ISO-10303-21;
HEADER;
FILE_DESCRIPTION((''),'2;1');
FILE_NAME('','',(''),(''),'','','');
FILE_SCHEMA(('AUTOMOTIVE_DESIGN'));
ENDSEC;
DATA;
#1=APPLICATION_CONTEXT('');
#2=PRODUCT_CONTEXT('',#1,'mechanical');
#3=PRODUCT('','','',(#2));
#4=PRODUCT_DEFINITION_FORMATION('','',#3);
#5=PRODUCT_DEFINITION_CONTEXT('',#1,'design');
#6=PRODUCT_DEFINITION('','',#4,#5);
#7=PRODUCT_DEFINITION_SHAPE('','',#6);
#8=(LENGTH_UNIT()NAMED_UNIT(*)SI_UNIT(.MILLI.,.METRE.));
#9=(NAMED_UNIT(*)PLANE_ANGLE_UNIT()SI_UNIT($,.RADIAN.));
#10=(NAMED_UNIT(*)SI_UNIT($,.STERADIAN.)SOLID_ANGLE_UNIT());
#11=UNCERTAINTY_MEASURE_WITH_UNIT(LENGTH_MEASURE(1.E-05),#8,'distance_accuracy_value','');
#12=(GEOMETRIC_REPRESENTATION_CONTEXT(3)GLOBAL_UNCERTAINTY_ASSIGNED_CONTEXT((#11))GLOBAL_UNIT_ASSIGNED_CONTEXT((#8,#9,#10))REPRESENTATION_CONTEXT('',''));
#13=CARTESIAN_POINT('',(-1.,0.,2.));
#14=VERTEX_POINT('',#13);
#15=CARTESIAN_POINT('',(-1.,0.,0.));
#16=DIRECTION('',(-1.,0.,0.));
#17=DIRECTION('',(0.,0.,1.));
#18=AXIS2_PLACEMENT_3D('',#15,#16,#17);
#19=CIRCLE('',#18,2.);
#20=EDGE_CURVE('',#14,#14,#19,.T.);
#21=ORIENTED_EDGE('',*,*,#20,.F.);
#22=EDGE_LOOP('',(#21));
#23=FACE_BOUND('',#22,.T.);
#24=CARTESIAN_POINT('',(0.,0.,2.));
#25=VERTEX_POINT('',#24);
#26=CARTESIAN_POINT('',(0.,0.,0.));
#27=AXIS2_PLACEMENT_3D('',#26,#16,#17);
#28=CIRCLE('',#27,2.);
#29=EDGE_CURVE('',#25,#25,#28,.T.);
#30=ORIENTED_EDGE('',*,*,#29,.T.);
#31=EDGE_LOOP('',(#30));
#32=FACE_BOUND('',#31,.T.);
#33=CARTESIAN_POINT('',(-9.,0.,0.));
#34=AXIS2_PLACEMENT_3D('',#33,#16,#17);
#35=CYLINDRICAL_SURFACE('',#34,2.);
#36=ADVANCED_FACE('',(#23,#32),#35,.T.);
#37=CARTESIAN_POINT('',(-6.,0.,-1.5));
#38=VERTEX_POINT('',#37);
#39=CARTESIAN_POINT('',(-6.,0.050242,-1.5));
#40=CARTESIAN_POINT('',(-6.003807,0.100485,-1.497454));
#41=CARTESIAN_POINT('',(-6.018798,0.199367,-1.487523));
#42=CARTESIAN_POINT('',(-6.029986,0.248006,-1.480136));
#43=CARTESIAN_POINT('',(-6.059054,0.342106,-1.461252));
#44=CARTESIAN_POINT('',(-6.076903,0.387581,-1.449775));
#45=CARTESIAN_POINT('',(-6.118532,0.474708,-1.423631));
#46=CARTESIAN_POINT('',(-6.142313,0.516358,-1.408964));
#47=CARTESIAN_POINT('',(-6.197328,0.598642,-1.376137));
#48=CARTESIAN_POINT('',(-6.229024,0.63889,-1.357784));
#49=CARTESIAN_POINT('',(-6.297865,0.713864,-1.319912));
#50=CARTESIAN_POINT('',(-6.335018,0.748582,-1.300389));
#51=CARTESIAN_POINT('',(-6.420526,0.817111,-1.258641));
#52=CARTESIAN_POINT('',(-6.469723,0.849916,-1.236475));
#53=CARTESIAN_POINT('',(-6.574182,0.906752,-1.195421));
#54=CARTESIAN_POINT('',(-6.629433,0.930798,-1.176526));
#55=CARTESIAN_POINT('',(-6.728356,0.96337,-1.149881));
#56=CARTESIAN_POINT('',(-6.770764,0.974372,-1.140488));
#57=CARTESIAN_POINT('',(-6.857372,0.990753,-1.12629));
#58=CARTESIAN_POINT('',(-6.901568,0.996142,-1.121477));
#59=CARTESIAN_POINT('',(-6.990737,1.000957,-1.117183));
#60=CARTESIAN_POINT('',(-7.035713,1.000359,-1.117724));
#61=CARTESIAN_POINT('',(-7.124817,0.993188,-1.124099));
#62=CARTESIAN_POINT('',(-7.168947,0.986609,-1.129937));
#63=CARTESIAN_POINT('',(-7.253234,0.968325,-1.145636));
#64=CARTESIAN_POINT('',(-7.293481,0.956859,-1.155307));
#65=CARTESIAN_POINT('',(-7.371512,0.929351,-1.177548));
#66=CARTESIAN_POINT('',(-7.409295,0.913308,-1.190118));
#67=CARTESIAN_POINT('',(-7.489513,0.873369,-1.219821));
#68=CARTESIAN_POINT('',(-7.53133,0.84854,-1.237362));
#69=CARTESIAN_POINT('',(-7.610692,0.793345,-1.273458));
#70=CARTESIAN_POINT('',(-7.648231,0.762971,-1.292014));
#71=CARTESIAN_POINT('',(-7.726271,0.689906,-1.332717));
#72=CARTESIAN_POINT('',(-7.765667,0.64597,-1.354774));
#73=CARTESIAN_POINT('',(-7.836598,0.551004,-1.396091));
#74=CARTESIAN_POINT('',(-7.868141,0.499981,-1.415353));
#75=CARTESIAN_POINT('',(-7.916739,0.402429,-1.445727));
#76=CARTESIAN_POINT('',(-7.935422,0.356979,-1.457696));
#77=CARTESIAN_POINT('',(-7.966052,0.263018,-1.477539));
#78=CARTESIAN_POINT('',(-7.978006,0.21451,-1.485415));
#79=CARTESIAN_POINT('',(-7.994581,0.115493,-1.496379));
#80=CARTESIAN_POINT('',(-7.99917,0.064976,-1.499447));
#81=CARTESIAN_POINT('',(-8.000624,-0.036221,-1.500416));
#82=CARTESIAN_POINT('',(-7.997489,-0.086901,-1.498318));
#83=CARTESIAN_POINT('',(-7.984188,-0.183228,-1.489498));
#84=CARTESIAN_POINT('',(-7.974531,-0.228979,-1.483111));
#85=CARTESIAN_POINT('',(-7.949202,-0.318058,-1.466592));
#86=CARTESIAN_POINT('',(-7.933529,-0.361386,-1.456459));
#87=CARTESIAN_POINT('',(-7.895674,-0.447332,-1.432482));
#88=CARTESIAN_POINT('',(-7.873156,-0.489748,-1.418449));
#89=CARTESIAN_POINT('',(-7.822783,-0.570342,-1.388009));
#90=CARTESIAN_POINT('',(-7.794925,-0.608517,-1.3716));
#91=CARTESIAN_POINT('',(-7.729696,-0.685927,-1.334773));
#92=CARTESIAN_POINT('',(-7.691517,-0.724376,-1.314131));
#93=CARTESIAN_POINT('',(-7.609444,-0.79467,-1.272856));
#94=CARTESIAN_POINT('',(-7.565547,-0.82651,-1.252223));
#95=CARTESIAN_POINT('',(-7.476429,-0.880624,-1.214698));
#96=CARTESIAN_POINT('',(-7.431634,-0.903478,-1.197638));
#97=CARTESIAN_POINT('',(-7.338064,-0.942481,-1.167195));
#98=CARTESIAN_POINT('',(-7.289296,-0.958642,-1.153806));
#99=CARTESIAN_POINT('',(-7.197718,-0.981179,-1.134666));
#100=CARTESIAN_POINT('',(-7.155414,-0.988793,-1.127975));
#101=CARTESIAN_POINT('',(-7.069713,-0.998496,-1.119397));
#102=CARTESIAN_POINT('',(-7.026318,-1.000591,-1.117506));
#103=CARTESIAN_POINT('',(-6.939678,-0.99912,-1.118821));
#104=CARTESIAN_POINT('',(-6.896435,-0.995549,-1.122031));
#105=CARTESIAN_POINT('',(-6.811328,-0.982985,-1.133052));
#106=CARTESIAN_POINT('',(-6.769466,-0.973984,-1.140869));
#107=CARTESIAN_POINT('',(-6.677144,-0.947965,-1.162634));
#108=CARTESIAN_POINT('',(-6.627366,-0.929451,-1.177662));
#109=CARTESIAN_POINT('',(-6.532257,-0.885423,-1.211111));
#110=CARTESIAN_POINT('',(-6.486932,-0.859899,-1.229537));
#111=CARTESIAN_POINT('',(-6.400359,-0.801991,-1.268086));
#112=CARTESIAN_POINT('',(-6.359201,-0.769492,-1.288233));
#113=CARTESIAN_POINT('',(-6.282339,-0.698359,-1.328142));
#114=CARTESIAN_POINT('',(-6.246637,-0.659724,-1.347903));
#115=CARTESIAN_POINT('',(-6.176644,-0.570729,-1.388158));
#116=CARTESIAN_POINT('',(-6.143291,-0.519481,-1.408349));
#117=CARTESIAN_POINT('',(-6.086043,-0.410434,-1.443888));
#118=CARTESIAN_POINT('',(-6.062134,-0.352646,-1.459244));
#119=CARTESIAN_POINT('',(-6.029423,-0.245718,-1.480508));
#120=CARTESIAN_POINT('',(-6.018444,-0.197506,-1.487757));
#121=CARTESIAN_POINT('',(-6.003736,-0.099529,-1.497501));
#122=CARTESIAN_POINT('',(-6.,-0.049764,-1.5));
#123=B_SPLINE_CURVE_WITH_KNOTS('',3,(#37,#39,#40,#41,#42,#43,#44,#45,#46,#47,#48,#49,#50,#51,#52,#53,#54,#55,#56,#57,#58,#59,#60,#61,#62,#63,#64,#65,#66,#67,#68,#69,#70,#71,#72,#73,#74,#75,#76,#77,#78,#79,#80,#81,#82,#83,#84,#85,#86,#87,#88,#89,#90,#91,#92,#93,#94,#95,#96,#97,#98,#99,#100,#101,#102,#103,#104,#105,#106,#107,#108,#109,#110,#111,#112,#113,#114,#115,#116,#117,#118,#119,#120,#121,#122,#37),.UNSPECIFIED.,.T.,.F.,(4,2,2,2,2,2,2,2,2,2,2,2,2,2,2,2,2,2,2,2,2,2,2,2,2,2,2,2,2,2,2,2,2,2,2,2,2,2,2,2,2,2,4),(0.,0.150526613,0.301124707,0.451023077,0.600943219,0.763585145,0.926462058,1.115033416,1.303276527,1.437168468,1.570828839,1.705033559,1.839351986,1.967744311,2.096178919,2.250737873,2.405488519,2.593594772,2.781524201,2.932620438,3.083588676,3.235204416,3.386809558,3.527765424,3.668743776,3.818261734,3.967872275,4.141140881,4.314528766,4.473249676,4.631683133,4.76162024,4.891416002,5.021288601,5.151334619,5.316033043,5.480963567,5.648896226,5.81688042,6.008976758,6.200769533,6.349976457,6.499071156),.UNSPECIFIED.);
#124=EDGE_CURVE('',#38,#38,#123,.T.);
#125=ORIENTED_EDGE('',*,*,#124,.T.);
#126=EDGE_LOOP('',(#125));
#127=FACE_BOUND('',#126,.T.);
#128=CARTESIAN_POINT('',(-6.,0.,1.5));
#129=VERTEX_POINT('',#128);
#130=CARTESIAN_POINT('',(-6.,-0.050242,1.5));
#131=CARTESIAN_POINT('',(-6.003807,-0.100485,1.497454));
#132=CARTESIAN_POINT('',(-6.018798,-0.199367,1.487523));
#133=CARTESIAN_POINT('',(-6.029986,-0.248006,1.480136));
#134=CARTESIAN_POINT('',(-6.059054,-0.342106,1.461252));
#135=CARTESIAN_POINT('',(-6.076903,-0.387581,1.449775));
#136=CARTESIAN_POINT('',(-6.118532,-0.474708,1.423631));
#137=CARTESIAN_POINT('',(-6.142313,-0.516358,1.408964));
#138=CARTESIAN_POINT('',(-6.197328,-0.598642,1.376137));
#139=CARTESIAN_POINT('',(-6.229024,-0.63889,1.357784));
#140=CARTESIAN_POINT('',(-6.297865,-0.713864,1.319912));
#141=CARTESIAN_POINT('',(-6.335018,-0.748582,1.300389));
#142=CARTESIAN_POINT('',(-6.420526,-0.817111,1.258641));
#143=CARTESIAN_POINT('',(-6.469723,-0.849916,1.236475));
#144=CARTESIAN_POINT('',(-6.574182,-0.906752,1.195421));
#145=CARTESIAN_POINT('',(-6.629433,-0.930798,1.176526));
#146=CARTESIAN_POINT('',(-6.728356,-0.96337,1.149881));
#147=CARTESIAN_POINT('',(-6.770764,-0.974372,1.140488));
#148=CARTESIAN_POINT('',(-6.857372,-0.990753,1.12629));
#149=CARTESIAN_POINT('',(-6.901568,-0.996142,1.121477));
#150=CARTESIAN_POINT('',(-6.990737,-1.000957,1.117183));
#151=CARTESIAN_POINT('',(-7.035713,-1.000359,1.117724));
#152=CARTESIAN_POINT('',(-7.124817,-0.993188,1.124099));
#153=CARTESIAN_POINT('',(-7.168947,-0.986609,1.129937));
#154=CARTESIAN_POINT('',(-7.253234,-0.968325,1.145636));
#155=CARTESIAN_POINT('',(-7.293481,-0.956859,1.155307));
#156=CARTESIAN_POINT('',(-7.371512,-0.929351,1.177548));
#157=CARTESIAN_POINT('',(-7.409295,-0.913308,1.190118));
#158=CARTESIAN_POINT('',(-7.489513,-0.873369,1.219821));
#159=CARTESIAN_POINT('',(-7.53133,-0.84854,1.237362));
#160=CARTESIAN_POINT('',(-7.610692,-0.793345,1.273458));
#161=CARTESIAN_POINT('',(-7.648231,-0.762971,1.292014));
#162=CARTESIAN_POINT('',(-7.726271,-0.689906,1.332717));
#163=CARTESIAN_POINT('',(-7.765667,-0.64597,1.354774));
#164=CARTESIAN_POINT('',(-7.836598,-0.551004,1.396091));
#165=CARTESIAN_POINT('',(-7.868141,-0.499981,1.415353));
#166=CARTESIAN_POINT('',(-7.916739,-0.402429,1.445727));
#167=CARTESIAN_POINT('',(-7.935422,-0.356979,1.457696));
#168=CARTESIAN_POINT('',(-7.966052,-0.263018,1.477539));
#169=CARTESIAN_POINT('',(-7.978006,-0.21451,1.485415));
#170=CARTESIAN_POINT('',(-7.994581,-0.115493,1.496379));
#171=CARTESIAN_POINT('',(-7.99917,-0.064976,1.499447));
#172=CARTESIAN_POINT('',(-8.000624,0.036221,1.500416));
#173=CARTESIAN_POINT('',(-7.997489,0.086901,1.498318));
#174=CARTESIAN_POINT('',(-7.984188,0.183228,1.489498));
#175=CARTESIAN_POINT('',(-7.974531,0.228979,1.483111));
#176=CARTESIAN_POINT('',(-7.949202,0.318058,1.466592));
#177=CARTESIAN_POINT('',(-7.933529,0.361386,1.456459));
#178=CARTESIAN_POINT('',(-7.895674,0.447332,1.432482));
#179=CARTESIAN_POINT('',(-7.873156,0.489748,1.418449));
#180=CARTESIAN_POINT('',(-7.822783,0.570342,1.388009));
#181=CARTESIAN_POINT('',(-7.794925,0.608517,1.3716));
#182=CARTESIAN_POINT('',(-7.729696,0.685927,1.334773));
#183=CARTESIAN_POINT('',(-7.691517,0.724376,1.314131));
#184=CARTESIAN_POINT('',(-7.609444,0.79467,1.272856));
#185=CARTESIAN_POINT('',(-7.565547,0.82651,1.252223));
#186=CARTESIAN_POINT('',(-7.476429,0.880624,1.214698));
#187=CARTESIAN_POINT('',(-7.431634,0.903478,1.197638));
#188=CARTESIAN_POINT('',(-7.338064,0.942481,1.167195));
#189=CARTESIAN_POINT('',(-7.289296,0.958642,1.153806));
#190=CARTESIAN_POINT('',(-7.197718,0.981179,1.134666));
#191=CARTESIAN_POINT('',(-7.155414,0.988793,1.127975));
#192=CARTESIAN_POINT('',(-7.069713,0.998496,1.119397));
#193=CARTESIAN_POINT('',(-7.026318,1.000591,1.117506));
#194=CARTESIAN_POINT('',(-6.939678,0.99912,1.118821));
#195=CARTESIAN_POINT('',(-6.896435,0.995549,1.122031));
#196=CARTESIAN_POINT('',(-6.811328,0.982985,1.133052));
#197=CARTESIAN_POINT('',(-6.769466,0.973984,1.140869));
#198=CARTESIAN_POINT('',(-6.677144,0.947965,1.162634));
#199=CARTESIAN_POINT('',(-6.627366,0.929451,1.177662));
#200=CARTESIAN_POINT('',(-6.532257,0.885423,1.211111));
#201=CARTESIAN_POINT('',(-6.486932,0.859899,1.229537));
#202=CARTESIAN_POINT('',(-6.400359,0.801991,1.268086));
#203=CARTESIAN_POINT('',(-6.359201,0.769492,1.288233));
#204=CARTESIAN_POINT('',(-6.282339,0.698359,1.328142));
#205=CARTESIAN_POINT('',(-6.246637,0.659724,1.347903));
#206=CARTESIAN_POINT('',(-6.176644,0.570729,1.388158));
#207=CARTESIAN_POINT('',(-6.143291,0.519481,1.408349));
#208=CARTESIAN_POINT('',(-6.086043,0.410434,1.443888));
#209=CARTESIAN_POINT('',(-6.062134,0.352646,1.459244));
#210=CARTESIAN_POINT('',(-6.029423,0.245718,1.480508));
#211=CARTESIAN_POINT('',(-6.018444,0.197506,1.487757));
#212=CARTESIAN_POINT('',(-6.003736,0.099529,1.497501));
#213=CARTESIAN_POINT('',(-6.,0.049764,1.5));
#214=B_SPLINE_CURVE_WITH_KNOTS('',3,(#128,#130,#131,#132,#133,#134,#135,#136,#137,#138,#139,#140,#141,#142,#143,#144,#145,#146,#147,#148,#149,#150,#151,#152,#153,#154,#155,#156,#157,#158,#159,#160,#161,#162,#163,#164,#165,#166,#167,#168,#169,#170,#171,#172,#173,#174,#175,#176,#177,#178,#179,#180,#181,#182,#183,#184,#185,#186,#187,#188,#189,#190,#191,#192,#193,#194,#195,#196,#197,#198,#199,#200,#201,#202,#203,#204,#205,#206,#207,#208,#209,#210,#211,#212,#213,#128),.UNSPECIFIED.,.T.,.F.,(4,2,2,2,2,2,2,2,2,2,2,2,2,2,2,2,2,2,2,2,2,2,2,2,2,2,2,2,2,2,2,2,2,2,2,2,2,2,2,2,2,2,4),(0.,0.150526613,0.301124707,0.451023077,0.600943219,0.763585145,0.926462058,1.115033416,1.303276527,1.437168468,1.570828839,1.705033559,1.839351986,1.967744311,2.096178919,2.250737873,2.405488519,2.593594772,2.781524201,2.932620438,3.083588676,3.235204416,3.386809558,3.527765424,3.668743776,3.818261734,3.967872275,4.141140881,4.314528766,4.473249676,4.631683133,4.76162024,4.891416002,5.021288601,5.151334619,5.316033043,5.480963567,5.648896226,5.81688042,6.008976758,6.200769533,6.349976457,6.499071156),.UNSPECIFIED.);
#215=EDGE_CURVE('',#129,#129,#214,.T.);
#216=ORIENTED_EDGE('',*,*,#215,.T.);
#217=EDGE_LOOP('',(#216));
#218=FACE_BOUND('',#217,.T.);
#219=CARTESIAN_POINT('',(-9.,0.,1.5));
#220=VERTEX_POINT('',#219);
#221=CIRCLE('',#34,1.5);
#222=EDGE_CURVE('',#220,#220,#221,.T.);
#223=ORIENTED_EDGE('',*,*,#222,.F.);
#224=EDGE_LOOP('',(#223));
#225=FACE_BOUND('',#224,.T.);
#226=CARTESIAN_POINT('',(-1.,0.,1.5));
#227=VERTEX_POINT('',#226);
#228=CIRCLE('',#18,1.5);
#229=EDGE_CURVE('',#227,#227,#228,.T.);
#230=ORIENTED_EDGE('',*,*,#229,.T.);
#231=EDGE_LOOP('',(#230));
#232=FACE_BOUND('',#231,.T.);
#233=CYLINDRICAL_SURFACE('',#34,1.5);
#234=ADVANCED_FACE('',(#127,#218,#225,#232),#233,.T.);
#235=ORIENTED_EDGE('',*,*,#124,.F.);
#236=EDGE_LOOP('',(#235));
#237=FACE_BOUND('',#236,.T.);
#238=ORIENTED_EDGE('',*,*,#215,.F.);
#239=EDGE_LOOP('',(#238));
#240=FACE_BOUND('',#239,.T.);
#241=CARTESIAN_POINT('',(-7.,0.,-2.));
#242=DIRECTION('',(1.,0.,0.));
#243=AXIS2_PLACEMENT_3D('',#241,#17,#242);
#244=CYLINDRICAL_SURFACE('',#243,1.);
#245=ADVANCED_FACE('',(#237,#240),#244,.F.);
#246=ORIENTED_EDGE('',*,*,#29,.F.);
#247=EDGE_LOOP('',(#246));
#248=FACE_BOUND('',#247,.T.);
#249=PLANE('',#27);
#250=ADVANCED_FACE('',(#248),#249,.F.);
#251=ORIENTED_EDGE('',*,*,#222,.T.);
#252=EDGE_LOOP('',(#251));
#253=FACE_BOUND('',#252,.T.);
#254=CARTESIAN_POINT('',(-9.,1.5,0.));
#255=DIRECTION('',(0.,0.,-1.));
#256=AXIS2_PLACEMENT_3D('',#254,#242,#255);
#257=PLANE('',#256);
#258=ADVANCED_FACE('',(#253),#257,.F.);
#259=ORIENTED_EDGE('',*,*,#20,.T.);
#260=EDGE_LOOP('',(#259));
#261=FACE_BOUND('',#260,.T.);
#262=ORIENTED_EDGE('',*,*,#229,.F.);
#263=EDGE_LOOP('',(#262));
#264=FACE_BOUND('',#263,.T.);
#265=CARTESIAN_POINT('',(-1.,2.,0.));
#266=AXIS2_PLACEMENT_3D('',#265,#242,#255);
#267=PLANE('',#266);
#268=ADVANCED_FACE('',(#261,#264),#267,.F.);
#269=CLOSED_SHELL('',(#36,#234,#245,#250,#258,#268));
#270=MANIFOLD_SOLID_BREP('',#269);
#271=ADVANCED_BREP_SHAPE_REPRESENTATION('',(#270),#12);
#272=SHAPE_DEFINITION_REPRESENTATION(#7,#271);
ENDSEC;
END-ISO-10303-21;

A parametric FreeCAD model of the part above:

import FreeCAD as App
import Part
import Sketcher
Q = App.Units.Quantity

doc = App.newDocument("Part")
body = doc.addObject("PartDesign::Body", "Body")

# Sketch on XY plane
sketch1 = body.newObject("Sketcher::SketchObject", "Sketch")
sketch1.AttachmentSupport = (doc.getObject("XY_Plane"), [""])
sketch1.MapMode = "FlatFace"
sketch1.addGeometry([
    Part.LineSegment(App.Vector(0, 2, 0), App.Vector(-1, 2, 0)),  # 0
    Part.LineSegment(App.Vector(-1, 2, 0), App.Vector(-1, 1.5, 0)),  # 1
    Part.LineSegment(App.Vector(-1, 1.5, 0), App.Vector(-9, 1.5, 0)),  # 2
    Part.LineSegment(App.Vector(-9, 1.5, 0), App.Vector(-9, 0, 0)),  # 3
    Part.LineSegment(App.Vector(-9, 0, 0), App.Vector(0, 0, 0)),  # 4
    Part.LineSegment(App.Vector(0, 0, 0), App.Vector(0, 2, 0)),  # 5
], False)
sketch1.addConstraint([
    Sketcher.Constraint("Coincident", 0, 2, 1, 1),
    Sketcher.Constraint("Coincident", 1, 2, 2, 1),
    Sketcher.Constraint("Coincident", 2, 2, 3, 1),
    Sketcher.Constraint("Coincident", 3, 2, 4, 1),
    Sketcher.Constraint("Coincident", 4, 2, 5, 1),
    Sketcher.Constraint("Coincident", 5, 2, 0, 1),
    Sketcher.Constraint("Horizontal", 0),
    Sketcher.Constraint("Vertical", 1),
    Sketcher.Constraint("Horizontal", 2),
    Sketcher.Constraint("Vertical", 3),
    Sketcher.Constraint("Horizontal", 4),
    Sketcher.Constraint("Vertical", 5),
    Sketcher.Constraint("Coincident", 4, 2, -1, 1),
    Sketcher.Constraint("DistanceX", 0, 2, 0, 1, Q("1 mm")),
    Sketcher.Constraint("DistanceX", 2, 2, 2, 1, Q("8 mm")),
    Sketcher.Constraint("DistanceY", 5, 1, 5, 2, Q("2 mm")),
    Sketcher.Constraint("DistanceY", 1, 2, 1, 1, Q("0.5 mm")),
])
revolution = body.newObject("PartDesign::Revolution", "Revolution")
revolution.Profile = sketch1
revolution.ReferenceAxis = (sketch1, ["H_Axis"])
revolution.Angle = 360

# Sketch on XY plane
sketch2 = body.newObject("Sketcher::SketchObject", "Sketch001")
sketch2.AttachmentSupport = (doc.getObject("XY_Plane"), [""])
sketch2.MapMode = "FlatFace"
sketch2.addGeometry(Part.Circle(App.Vector(-7, 0, 0), App.Vector(0, 0, 1), 1), False)
sketch2.addConstraint([
    Sketcher.Constraint("PointOnObject", 0, 3, -1),
    Sketcher.Constraint("Diameter", 0, Q("2 mm")),
    Sketcher.Constraint("DistanceX", 0, 3, -1, 1, Q("7 mm")),
])
pocket1 = body.newObject("PartDesign::Pocket", "Pocket")
pocket1.Profile = sketch2
pocket1.Type = "ThroughAll"
pocket1.Midplane = True

doc.recompute()
